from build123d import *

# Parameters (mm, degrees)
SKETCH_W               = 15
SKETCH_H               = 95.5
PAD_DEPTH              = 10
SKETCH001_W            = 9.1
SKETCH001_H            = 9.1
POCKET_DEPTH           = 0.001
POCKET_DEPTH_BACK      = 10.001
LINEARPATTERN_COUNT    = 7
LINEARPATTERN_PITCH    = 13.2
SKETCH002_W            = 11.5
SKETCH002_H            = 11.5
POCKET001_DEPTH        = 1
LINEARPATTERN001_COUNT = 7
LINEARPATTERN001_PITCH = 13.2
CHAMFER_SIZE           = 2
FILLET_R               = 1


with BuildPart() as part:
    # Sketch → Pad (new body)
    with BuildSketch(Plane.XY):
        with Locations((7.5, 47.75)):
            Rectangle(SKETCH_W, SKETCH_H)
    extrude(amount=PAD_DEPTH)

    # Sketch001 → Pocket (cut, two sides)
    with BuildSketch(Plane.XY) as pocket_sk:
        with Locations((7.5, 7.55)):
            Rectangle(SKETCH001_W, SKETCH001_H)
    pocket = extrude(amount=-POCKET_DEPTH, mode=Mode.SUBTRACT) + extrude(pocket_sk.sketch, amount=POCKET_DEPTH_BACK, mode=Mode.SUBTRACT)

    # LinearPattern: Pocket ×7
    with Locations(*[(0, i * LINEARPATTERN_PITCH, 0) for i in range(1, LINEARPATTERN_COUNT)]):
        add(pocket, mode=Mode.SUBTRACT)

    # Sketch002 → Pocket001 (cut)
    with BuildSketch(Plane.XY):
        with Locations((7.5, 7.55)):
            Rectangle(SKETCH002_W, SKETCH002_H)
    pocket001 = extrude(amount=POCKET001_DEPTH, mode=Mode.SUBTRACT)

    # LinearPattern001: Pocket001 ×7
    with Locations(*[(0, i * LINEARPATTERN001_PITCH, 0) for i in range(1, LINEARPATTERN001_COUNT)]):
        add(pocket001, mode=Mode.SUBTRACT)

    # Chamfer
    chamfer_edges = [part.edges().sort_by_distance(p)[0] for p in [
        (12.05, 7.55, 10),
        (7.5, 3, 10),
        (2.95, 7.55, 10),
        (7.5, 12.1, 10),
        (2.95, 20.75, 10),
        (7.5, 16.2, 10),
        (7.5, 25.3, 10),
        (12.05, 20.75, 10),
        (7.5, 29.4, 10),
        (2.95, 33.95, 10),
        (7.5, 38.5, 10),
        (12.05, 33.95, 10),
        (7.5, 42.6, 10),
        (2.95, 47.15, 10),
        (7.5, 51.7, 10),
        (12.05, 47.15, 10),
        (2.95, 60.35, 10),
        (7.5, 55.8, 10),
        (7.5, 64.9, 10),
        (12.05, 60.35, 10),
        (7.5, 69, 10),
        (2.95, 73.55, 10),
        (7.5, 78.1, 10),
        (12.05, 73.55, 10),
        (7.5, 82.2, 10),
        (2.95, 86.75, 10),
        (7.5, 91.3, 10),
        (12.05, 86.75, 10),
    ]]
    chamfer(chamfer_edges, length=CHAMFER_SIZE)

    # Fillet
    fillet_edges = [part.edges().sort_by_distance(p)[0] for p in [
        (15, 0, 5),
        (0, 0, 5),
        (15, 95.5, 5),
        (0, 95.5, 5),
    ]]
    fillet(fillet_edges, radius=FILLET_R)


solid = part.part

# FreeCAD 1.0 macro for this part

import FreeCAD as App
import Part
import Sketcher


def edges_at(feature, points):
    """Names of the edges that pass closest to the given points."""
    edges = feature.Shape.Edges
    near = lambda p: min(range(len(edges)), key=lambda i: edges[i].distToShape(Part.Vertex(*p))[0])
    return sorted({f"Edge{near(p) + 1}" for p in points})


def add_polygon(sketch, points):
    """Adds a closed chain of lines whose ends are joined by coincident constraints."""
    first, n = sketch.GeometryCount, len(points)
    for a, b in zip(points, points[1:] + points[:1]):
        sketch.addGeometry(Part.LineSegment(App.Vector(*a, 0), App.Vector(*b, 0)), False)
    for i in range(n):
        sketch.addConstraint(Sketcher.Constraint("Coincident", first + i, 2, first + (i + 1) % n, 1))

doc = App.newDocument("Part")
params = doc.addObject("Spreadsheet::Sheet", "Params")
for row, (alias, value) in enumerate([
    ("sketch1_width", "15 mm"),
    ("sketch1_height", "95.5 mm"),
    ("pad1_length", "10 mm"),
    ("sketch2_width", "9.1 mm"),
    ("linearpattern_pitch", "13.2 mm"),
    ("sketch3_width", "11.5 mm"),
    ("pocket2_length", "1 mm"),
    ("linearpattern2_pitch", "13.2 mm"),
    ("chamfer_size", "2 mm"),
    ("fillet_radius", "1 mm"),
], start=1):
    params.set(f"A{row}", alias)
    params.set(f"B{row}", "=" + value)
    params.setAlias(f"B{row}", alias)

body = doc.addObject("PartDesign::Body", "Body")

# Sketch on XY plane
sketch1 = body.newObject("Sketcher::SketchObject", "Sketch")
sketch1.AttachmentSupport = (doc.getObject("XY_Plane"), [""])
sketch1.MapMode = "FlatFace"
add_polygon(sketch1, [(0, 96), (0, 0), (15, 0), (15, 96)])  # lines 0-3
sketch1.addConstraint(Sketcher.Constraint("Vertical", 0))
sketch1.addConstraint(Sketcher.Constraint("Horizontal", 1))
sketch1.addConstraint(Sketcher.Constraint("Vertical", 2))
sketch1.addConstraint(Sketcher.Constraint("Horizontal", 3))
sketch1.addConstraint(Sketcher.Constraint("Coincident", 0, 2, -1, 1))
sketch1.addConstraint(Sketcher.Constraint("DistanceX", 1, 1, 1, 2, 15.0))
sketch1.addConstraint(Sketcher.Constraint("DistanceY", 0, 2, 0, 1, 95.5))
sketch1.setExpression("Constraints[9]", "Params.sketch1_width")
sketch1.setExpression("Constraints[10]", "Params.sketch1_height")
pad1 = body.newObject("PartDesign::Pad", "Pad")
pad1.Profile = sketch1
pad1.setExpression("Length", "Params.pad1_length")

# Sketch on XY plane
sketch2 = body.newObject("Sketcher::SketchObject", "Sketch001")
sketch2.AttachmentSupport = (doc.getObject("XY_Plane"), [""])
sketch2.MapMode = "FlatFace"
add_polygon(sketch2, [(3, 12), (3, 3), (12, 3), (12, 12)])  # lines 0-3
sketch2.addConstraint(Sketcher.Constraint("Vertical", 0))
sketch2.addConstraint(Sketcher.Constraint("Horizontal", 1))
sketch2.addConstraint(Sketcher.Constraint("Vertical", 2))
sketch2.addConstraint(Sketcher.Constraint("Horizontal", 3))
sketch2.addConstraint(Sketcher.Constraint("Equal", 3, 0))
sketch2.addConstraint(Sketcher.Constraint("DistanceX", 1, 1, 1, 2, 9.1))
sketch2.addConstraint(Sketcher.Constraint("DistanceY", -1, 1, 0, 2, 3.0))
sketch2.addConstraint(Sketcher.Constraint("DistanceX", -1, 1, 0, 2, 2.95))
sketch2.setExpression("Constraints[9]", "Params.sketch2_width")
pocket1 = body.newObject("PartDesign::Pocket", "Pocket")
pocket1.Profile = sketch2
pocket1.Type = "ThroughAll"
pocket1.Midplane = True
doc.recompute()

linearpattern = body.newObject("PartDesign::LinearPattern", "LinearPattern")
linearpattern.Originals = [pocket1]
linearpattern.Direction = (doc.getObject("Y_Axis"), [""])
linearpattern.Mode = "offset"
linearpattern.setExpression("Offset", "Params.linearpattern_pitch")
linearpattern.Occurrences = 7
body.Tip = linearpattern

# Sketch on XY plane
sketch3 = body.newObject("Sketcher::SketchObject", "Sketch002")
sketch3.AttachmentSupport = (doc.getObject("XY_Plane"), [""])
sketch3.MapMode = "FlatFace"
add_polygon(sketch3, [(2, 13), (2, 2), (13, 2), (13, 13)])  # lines 0-3
sketch3.addConstraint(Sketcher.Constraint("Vertical", 0))
sketch3.addConstraint(Sketcher.Constraint("Horizontal", 1))
sketch3.addConstraint(Sketcher.Constraint("Vertical", 2))
sketch3.addConstraint(Sketcher.Constraint("Horizontal", 3))
sketch3.addConstraint(Sketcher.Constraint("Equal", 3, 0))
sketch3.addConstraint(Sketcher.Constraint("DistanceX", 1, 1, 1, 2, 11.5))
sketch3.addConstraint(Sketcher.Constraint("DistanceY", -1, 1, 0, 2, 1.8))
sketch3.addConstraint(Sketcher.Constraint("DistanceX", -1, 1, 0, 2, 1.75))
sketch3.setExpression("Constraints[9]", "Params.sketch3_width")
pocket2 = body.newObject("PartDesign::Pocket", "Pocket001")
pocket2.Profile = sketch3
pocket2.setExpression("Length", "Params.pocket2_length")
pocket2.Reversed = True
doc.recompute()

linearpattern2 = body.newObject("PartDesign::LinearPattern", "LinearPattern001")
linearpattern2.Originals = [pocket2]
linearpattern2.Direction = (doc.getObject("Y_Axis"), [""])
linearpattern2.Mode = "offset"
linearpattern2.setExpression("Offset", "Params.linearpattern2_pitch")
linearpattern2.Occurrences = 7
body.Tip = linearpattern2
doc.recompute()

chamfer = body.newObject("PartDesign::Chamfer", "Chamfer")
chamfer.Base = (linearpattern2, edges_at(linearpattern2, [
    (12.05, 7.55, 10),
    (7.5, 3, 10),
    (2.95, 7.55, 10),
    (7.5, 12.1, 10),
    (2.95, 20.75, 10),
    (7.5, 16.2, 10),
    (7.5, 25.3, 10),
    (12.05, 20.75, 10),
    (7.5, 29.4, 10),
    (2.95, 33.95, 10),
    (7.5, 38.5, 10),
    (12.05, 33.95, 10),
    (7.5, 42.6, 10),
    (2.95, 47.15, 10),
    (7.5, 51.7, 10),
    (12.05, 47.15, 10),
    (2.95, 60.35, 10),
    (7.5, 55.8, 10),
    (7.5, 64.9, 10),
    (12.05, 60.35, 10),
    (7.5, 69, 10),
    (2.95, 73.55, 10),
    (7.5, 78.1, 10),
    (12.05, 73.55, 10),
    (7.5, 82.2, 10),
    (2.95, 86.75, 10),
    (7.5, 91.3, 10),
    (12.05, 86.75, 10),
]))
chamfer.setExpression("Size", "Params.chamfer_size")
doc.recompute()

fillet = body.newObject("PartDesign::Fillet", "Fillet")
fillet.Base = (chamfer, edges_at(chamfer, [
    (15, 0, 5),
    (0, 0, 5),
    (15, 95.5, 5),
    (0, 95.5, 5),
]))
fillet.setExpression("Radius", "Params.fillet_radius")

doc.recompute()
